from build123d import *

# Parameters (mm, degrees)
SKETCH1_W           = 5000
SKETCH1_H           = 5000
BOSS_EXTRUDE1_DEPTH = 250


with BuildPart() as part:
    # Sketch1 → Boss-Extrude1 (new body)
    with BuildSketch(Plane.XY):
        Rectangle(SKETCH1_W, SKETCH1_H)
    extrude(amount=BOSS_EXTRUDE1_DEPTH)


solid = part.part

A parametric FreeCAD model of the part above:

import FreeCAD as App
import Part
import Sketcher
from FreeCAD import Vector
Q = App.Units.Quantity

doc = App.newDocument("Part")
body = doc.addObject("PartDesign::Body", "Body")

sketch1 = body.newObject("Sketcher::SketchObject", "Sketch")
sketch1.AttachmentSupport = (doc.getObject("XY_Plane"), [""])
sketch1.MapMode = "FlatFace"
sketch1.addGeometry([
    Part.LineSegment(Vector(-2500, 2500, 0), Vector(-2500, -2500, 0)),
    Part.LineSegment(Vector(-2500, -2500, 0), Vector(2500, -2500, 0)),
    Part.LineSegment(Vector(2500, -2500, 0), Vector(2500, 2500, 0)),
    Part.LineSegment(Vector(2500, 2500, 0), Vector(-2500, 2500, 0)),
], False)
sketch1.addConstraint([
    Sketcher.Constraint("Coincident", 0, 2, 1, 1),
    Sketcher.Constraint("Coincident", 1, 2, 2, 1),
    Sketcher.Constraint("Coincident", 2, 2, 3, 1),
    Sketcher.Constraint("Coincident", 3, 2, 0, 1),
    Sketcher.Constraint("Vertical", 0),
    Sketcher.Constraint("Horizontal", 1),
    Sketcher.Constraint("Vertical", 2),
    Sketcher.Constraint("Horizontal", 3),
    Sketcher.Constraint("Symmetric", 0, 2, 2, 2, -1, 1),
    Sketcher.Constraint("Equal", 3, 0),
    Sketcher.Constraint("DistanceX", 1, 1, 1, 2, Q("5000 mm")),
])
pad1 = body.newObject("PartDesign::Pad", "Pad")
pad1.Profile = sketch1
pad1.Length = 250

doc.recompute()
